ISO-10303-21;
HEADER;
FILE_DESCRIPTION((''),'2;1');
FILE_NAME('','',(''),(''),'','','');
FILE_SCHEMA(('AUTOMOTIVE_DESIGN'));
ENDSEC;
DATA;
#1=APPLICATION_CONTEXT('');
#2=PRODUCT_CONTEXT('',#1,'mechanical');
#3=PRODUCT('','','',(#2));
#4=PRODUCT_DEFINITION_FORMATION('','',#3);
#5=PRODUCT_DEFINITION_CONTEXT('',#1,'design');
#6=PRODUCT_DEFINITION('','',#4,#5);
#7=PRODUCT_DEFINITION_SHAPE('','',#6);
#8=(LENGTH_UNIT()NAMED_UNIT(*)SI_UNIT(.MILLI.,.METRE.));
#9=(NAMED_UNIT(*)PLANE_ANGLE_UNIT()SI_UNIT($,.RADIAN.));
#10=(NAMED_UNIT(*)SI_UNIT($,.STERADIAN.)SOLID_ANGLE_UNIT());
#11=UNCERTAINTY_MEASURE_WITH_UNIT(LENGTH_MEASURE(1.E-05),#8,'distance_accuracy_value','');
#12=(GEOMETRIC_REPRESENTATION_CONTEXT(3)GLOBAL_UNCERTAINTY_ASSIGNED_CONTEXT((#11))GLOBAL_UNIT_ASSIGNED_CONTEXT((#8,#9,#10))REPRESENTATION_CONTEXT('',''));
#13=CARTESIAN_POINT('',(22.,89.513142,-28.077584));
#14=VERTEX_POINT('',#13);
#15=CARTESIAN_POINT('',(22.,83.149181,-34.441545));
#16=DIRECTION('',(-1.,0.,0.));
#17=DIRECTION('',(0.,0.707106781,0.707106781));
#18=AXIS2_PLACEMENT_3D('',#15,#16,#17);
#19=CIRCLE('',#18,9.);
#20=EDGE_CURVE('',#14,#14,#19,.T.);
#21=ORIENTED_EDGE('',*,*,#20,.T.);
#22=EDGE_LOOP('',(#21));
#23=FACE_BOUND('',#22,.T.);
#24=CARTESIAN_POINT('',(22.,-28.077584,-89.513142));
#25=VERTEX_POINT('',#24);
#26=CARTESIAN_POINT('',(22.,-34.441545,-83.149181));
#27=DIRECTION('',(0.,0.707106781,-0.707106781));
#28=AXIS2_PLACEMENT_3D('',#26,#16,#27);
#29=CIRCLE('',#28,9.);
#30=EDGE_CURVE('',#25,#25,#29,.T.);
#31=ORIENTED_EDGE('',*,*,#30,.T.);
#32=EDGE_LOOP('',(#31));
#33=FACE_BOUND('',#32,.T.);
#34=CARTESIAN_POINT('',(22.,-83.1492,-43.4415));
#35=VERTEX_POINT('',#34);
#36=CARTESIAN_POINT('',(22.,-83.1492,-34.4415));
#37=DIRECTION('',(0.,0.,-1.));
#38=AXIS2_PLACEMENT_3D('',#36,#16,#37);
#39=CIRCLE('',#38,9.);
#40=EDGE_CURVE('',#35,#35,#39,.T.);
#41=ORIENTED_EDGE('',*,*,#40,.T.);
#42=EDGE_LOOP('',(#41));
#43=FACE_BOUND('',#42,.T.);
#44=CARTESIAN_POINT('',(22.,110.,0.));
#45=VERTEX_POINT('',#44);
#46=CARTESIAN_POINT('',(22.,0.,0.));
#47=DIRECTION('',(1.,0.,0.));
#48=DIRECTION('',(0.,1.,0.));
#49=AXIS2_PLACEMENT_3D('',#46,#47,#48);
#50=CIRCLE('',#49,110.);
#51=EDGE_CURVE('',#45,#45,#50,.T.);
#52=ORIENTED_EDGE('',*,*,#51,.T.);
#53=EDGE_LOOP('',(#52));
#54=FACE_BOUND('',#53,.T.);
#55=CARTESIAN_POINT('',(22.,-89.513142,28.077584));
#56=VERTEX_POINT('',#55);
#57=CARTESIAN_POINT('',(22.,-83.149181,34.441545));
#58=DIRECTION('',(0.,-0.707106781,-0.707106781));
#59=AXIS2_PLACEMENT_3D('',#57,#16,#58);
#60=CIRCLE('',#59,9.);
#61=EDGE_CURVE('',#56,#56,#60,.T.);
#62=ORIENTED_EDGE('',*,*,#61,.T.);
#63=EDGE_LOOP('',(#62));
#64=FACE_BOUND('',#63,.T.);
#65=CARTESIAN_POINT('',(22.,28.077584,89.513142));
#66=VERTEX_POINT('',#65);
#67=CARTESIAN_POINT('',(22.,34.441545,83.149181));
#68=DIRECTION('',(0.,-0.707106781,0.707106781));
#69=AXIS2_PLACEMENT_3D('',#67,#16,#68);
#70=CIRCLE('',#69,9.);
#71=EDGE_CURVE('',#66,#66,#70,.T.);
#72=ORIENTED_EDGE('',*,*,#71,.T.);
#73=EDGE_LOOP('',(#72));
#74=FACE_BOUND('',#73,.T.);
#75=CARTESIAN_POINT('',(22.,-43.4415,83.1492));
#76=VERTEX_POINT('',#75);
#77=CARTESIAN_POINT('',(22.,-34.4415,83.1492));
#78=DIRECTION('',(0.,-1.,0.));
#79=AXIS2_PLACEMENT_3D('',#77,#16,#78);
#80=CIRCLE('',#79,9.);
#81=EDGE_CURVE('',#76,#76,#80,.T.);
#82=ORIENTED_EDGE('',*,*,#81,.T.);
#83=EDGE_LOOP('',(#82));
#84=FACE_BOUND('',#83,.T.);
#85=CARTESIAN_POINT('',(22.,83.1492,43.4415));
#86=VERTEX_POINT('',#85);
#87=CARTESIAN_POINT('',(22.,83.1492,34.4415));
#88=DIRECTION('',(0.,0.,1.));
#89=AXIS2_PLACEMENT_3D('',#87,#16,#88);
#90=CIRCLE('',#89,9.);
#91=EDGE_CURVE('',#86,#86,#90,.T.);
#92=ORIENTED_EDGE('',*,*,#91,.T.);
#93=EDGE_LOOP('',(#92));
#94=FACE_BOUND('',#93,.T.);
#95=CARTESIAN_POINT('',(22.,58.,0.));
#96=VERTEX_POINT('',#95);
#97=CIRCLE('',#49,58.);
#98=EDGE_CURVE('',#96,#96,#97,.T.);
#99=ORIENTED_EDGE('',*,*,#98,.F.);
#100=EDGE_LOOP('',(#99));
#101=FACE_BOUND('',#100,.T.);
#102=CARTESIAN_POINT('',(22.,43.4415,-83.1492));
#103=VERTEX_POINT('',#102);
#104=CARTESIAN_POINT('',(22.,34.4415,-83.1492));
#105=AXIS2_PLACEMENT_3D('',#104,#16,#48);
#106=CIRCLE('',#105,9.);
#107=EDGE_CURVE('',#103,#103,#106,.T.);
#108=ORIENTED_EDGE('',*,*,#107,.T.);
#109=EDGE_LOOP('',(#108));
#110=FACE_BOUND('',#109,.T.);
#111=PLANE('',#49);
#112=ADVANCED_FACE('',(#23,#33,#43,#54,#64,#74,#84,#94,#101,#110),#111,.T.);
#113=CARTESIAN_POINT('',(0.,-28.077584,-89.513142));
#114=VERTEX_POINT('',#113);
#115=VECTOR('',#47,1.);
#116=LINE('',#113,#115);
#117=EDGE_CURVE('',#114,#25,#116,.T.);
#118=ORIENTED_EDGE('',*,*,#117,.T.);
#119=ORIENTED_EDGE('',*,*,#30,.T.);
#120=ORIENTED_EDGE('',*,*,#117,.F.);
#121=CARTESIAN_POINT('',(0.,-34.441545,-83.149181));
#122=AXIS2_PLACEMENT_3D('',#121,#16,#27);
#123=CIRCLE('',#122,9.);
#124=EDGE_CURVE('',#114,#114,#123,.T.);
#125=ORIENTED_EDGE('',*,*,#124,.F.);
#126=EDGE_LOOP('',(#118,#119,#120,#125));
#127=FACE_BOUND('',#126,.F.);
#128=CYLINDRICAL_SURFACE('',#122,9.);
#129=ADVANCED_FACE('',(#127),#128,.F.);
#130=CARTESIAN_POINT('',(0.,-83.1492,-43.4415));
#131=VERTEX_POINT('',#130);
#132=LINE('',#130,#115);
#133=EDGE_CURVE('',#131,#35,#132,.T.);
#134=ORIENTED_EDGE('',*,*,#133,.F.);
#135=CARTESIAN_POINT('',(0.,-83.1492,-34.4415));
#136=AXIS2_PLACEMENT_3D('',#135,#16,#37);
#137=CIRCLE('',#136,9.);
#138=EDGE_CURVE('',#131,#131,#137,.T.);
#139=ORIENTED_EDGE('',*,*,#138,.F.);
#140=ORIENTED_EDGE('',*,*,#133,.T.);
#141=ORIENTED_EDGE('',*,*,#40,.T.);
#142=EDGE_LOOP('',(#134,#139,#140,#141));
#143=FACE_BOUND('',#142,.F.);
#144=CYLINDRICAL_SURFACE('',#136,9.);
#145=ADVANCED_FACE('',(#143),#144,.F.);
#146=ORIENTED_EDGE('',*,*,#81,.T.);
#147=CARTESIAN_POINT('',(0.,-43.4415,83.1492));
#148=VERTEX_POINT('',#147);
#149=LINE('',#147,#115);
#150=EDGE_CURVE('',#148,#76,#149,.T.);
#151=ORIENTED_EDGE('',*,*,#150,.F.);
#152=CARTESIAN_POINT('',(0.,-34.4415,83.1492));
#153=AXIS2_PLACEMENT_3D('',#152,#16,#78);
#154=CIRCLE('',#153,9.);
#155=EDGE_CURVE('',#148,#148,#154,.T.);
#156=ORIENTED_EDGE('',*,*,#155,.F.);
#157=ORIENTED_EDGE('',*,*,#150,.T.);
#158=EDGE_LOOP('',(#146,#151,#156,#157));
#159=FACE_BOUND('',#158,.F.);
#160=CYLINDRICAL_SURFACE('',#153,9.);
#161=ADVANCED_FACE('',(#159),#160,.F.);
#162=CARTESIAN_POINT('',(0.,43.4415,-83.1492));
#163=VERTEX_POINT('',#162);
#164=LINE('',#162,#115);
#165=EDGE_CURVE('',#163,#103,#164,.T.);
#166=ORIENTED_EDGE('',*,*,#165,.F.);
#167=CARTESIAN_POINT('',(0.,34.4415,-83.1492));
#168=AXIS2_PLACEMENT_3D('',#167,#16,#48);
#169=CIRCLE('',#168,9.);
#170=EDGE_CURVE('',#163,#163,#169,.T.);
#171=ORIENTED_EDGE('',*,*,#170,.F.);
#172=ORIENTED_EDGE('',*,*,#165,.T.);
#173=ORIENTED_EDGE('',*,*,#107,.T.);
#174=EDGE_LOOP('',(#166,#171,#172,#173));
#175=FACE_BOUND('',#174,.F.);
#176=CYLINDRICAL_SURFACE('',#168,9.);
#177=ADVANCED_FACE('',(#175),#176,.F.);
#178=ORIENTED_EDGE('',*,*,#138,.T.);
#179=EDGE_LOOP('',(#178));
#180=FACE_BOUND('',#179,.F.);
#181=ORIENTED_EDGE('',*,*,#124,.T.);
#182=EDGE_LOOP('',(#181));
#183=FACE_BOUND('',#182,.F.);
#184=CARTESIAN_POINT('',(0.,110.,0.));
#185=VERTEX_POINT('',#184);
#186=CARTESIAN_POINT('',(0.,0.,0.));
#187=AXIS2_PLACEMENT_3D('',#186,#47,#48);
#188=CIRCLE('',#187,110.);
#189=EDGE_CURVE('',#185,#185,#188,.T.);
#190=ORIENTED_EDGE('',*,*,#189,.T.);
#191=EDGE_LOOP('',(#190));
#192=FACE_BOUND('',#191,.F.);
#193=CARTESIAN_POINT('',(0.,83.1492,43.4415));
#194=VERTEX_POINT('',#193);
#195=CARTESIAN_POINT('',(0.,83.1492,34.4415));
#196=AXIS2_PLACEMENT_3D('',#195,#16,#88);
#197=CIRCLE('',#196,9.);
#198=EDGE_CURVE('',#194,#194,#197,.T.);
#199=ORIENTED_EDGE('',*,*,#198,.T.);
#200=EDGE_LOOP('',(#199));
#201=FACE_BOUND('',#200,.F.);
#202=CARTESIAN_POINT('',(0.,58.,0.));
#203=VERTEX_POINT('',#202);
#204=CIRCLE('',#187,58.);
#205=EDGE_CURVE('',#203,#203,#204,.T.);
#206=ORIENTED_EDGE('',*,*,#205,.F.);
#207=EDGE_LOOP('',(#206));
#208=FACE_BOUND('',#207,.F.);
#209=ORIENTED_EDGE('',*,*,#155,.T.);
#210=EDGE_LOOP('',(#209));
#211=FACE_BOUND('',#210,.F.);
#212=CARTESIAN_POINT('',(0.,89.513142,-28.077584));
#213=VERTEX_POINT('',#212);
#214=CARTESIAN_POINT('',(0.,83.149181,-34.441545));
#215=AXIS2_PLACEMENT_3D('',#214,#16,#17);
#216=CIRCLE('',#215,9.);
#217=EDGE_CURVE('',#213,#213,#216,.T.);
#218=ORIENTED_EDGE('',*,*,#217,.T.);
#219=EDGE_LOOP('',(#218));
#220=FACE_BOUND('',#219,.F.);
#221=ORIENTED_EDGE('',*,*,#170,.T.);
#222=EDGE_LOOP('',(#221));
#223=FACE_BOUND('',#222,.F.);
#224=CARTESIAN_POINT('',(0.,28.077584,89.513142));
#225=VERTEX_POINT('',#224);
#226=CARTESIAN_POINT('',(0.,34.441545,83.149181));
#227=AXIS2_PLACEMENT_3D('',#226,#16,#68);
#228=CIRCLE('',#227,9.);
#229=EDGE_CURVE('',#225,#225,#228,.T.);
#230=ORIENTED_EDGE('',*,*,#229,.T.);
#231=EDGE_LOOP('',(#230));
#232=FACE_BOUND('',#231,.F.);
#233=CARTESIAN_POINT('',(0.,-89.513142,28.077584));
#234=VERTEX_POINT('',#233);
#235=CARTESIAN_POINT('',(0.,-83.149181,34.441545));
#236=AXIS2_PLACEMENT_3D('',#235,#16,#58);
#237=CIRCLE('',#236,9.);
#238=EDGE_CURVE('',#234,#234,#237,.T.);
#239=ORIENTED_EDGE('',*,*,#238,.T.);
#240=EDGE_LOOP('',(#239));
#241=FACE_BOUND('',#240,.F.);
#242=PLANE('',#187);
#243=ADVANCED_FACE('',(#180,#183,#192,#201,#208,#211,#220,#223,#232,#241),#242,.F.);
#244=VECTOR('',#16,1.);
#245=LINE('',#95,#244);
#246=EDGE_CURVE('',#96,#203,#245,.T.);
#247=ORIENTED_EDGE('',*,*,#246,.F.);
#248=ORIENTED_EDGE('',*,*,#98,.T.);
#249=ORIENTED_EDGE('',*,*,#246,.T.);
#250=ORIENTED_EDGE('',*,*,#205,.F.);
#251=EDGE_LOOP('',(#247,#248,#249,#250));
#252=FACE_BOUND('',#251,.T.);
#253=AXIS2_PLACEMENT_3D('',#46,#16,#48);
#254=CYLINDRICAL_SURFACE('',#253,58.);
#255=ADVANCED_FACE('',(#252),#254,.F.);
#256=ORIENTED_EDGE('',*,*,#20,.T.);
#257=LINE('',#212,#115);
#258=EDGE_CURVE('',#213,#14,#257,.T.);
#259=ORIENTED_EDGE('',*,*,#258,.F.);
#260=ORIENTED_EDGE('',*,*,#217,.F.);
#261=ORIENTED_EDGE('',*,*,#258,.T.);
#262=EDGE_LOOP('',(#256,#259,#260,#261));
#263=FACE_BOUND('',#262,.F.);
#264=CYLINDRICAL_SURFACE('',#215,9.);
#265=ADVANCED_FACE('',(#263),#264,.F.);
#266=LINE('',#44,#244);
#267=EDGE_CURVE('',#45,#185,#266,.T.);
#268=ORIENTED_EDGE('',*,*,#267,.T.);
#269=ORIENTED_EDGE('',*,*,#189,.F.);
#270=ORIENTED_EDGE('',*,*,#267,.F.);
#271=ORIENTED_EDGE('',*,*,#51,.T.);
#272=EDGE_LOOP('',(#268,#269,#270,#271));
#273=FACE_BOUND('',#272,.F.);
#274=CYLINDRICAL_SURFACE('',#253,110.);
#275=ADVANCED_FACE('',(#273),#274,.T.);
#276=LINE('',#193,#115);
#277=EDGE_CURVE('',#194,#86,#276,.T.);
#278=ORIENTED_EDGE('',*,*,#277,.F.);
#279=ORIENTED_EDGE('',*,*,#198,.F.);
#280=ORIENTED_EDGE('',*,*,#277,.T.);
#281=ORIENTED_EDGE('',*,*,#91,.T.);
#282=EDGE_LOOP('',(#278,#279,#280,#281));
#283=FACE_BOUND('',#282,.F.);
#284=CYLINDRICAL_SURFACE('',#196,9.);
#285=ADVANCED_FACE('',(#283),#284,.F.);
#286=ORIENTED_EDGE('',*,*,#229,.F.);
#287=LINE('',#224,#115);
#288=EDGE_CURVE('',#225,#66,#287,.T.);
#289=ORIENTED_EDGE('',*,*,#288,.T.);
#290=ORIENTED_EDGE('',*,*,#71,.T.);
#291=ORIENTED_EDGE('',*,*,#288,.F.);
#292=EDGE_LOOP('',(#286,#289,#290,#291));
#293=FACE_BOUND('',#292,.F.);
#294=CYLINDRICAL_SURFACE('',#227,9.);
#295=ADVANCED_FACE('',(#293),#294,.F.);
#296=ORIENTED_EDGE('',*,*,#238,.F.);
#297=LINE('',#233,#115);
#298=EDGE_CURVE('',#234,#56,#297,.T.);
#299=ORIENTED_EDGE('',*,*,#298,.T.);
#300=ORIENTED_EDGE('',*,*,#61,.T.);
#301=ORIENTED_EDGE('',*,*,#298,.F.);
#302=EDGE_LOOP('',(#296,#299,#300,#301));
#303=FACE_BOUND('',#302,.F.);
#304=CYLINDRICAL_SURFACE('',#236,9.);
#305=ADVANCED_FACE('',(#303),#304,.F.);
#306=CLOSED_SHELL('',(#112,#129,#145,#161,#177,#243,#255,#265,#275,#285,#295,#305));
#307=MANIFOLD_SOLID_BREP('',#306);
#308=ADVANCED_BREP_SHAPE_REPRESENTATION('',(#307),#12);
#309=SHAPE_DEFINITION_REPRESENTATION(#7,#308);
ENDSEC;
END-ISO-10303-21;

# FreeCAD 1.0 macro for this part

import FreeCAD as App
import Part
import Sketcher
from FreeCAD import Vector
Q = App.Units.Quantity

doc = App.newDocument("Part")
params = doc.addObject("Spreadsheet::Sheet", "Params")
for row, (alias, value) in enumerate([
    ("sketch1_width", "22 mm"),
    ("sketch1_height", "52 mm"),
    ("revolution_angle", "360 deg"),
    ("sketch2_diameter", "18 mm"),
], start=1):
    params.set(f"A{row}", alias)
    params.set(f"B{row}", "=" + value)
    params.setAlias(f"B{row}", alias)

body = doc.addObject("PartDesign::Body", "Body")

# Sketch on XY plane
sketch1 = doc.addObject("Sketcher::SketchObject", "Sketch")
body.addObject(sketch1)
sketch1.AttachmentSupport = (doc.XY_Plane, [""])
sketch1.MapMode = "FlatFace"
sketch1.addGeometry([
    Part.LineSegment(Vector(22, 58, 0), Vector(22, 110, 0)),
    Part.LineSegment(Vector(22, 110, 0), Vector(0, 110, 0)),
    Part.LineSegment(Vector(0, 110, 0), Vector(0, 58, 0)),
    Part.LineSegment(Vector(0, 58, 0), Vector(22, 58, 0)),
], False)
sketch1.addConstraint([
    Sketcher.Constraint("Coincident", 0, 2, 1, 1),
    Sketcher.Constraint("Coincident", 1, 2, 2, 1),
    Sketcher.Constraint("Coincident", 2, 2, 3, 1),
    Sketcher.Constraint("Coincident", 3, 2, 0, 1),
    Sketcher.Constraint("Vertical", 0),
    Sketcher.Constraint("Horizontal", 1),
    Sketcher.Constraint("Vertical", 2),
    Sketcher.Constraint("Horizontal", 3),
    Sketcher.Constraint("PointOnObject", 1, 2, -2),
    Sketcher.Constraint("DistanceX", 1, 2, 1, 1, Q("22 mm")),
    Sketcher.Constraint("DistanceY", 0, 1, 0, 2, Q("52 mm")),
    Sketcher.Constraint("DistanceY", -1, 1, 0, 2, Q("110 mm")),
])
sketch1.setExpression("Constraints[9]", "Params.sketch1_width")
sketch1.setExpression("Constraints[10]", "Params.sketch1_height")
revolution = doc.addObject("PartDesign::Revolution", "Revolution")
body.addObject(revolution)
revolution.Profile = sketch1
revolution.ReferenceAxis = (sketch1, ["H_Axis"])
revolution.setExpression("Angle", "Params.revolution_angle")

# Sketch on YZ plane
sketch2 = doc.addObject("Sketcher::SketchObject", "Sketch001")
body.addObject(sketch2)
sketch2.AttachmentSupport = (doc.YZ_Plane, [""])
sketch2.MapMode = "FlatFace"
sketch2.addGeometry(Part.Circle(Vector(83, 34, 0), Vector(0, 0, 1), 9), False)
sketch2.addConstraint([
    Sketcher.Constraint("Diameter", 0, Q("18 mm")),
    Sketcher.Constraint("DistanceX", -1, 1, 0, 3, Q("83.1492 mm")),
    Sketcher.Constraint("DistanceY", -1, 1, 0, 3, Q("34.4415 mm")),
])
sketch2.setExpression("Constraints[0]", "Params.sketch2_diameter")
pocket1 = doc.addObject("PartDesign::Pocket", "Pocket")
body.addObject(pocket1)
pocket1.Profile = sketch2
pocket1.Type = "ThroughAll"
pocket1.Reversed = True
doc.recompute()

polarpattern = doc.addObject("PartDesign::PolarPattern", "PolarPattern")
body.addObject(polarpattern)
polarpattern.Originals = [pocket1]
polarpattern.Axis = (doc.X_Axis, [""])
polarpattern.Angle = 360
polarpattern.Occurrences = 8
body.Tip = polarpattern

doc.recompute()
